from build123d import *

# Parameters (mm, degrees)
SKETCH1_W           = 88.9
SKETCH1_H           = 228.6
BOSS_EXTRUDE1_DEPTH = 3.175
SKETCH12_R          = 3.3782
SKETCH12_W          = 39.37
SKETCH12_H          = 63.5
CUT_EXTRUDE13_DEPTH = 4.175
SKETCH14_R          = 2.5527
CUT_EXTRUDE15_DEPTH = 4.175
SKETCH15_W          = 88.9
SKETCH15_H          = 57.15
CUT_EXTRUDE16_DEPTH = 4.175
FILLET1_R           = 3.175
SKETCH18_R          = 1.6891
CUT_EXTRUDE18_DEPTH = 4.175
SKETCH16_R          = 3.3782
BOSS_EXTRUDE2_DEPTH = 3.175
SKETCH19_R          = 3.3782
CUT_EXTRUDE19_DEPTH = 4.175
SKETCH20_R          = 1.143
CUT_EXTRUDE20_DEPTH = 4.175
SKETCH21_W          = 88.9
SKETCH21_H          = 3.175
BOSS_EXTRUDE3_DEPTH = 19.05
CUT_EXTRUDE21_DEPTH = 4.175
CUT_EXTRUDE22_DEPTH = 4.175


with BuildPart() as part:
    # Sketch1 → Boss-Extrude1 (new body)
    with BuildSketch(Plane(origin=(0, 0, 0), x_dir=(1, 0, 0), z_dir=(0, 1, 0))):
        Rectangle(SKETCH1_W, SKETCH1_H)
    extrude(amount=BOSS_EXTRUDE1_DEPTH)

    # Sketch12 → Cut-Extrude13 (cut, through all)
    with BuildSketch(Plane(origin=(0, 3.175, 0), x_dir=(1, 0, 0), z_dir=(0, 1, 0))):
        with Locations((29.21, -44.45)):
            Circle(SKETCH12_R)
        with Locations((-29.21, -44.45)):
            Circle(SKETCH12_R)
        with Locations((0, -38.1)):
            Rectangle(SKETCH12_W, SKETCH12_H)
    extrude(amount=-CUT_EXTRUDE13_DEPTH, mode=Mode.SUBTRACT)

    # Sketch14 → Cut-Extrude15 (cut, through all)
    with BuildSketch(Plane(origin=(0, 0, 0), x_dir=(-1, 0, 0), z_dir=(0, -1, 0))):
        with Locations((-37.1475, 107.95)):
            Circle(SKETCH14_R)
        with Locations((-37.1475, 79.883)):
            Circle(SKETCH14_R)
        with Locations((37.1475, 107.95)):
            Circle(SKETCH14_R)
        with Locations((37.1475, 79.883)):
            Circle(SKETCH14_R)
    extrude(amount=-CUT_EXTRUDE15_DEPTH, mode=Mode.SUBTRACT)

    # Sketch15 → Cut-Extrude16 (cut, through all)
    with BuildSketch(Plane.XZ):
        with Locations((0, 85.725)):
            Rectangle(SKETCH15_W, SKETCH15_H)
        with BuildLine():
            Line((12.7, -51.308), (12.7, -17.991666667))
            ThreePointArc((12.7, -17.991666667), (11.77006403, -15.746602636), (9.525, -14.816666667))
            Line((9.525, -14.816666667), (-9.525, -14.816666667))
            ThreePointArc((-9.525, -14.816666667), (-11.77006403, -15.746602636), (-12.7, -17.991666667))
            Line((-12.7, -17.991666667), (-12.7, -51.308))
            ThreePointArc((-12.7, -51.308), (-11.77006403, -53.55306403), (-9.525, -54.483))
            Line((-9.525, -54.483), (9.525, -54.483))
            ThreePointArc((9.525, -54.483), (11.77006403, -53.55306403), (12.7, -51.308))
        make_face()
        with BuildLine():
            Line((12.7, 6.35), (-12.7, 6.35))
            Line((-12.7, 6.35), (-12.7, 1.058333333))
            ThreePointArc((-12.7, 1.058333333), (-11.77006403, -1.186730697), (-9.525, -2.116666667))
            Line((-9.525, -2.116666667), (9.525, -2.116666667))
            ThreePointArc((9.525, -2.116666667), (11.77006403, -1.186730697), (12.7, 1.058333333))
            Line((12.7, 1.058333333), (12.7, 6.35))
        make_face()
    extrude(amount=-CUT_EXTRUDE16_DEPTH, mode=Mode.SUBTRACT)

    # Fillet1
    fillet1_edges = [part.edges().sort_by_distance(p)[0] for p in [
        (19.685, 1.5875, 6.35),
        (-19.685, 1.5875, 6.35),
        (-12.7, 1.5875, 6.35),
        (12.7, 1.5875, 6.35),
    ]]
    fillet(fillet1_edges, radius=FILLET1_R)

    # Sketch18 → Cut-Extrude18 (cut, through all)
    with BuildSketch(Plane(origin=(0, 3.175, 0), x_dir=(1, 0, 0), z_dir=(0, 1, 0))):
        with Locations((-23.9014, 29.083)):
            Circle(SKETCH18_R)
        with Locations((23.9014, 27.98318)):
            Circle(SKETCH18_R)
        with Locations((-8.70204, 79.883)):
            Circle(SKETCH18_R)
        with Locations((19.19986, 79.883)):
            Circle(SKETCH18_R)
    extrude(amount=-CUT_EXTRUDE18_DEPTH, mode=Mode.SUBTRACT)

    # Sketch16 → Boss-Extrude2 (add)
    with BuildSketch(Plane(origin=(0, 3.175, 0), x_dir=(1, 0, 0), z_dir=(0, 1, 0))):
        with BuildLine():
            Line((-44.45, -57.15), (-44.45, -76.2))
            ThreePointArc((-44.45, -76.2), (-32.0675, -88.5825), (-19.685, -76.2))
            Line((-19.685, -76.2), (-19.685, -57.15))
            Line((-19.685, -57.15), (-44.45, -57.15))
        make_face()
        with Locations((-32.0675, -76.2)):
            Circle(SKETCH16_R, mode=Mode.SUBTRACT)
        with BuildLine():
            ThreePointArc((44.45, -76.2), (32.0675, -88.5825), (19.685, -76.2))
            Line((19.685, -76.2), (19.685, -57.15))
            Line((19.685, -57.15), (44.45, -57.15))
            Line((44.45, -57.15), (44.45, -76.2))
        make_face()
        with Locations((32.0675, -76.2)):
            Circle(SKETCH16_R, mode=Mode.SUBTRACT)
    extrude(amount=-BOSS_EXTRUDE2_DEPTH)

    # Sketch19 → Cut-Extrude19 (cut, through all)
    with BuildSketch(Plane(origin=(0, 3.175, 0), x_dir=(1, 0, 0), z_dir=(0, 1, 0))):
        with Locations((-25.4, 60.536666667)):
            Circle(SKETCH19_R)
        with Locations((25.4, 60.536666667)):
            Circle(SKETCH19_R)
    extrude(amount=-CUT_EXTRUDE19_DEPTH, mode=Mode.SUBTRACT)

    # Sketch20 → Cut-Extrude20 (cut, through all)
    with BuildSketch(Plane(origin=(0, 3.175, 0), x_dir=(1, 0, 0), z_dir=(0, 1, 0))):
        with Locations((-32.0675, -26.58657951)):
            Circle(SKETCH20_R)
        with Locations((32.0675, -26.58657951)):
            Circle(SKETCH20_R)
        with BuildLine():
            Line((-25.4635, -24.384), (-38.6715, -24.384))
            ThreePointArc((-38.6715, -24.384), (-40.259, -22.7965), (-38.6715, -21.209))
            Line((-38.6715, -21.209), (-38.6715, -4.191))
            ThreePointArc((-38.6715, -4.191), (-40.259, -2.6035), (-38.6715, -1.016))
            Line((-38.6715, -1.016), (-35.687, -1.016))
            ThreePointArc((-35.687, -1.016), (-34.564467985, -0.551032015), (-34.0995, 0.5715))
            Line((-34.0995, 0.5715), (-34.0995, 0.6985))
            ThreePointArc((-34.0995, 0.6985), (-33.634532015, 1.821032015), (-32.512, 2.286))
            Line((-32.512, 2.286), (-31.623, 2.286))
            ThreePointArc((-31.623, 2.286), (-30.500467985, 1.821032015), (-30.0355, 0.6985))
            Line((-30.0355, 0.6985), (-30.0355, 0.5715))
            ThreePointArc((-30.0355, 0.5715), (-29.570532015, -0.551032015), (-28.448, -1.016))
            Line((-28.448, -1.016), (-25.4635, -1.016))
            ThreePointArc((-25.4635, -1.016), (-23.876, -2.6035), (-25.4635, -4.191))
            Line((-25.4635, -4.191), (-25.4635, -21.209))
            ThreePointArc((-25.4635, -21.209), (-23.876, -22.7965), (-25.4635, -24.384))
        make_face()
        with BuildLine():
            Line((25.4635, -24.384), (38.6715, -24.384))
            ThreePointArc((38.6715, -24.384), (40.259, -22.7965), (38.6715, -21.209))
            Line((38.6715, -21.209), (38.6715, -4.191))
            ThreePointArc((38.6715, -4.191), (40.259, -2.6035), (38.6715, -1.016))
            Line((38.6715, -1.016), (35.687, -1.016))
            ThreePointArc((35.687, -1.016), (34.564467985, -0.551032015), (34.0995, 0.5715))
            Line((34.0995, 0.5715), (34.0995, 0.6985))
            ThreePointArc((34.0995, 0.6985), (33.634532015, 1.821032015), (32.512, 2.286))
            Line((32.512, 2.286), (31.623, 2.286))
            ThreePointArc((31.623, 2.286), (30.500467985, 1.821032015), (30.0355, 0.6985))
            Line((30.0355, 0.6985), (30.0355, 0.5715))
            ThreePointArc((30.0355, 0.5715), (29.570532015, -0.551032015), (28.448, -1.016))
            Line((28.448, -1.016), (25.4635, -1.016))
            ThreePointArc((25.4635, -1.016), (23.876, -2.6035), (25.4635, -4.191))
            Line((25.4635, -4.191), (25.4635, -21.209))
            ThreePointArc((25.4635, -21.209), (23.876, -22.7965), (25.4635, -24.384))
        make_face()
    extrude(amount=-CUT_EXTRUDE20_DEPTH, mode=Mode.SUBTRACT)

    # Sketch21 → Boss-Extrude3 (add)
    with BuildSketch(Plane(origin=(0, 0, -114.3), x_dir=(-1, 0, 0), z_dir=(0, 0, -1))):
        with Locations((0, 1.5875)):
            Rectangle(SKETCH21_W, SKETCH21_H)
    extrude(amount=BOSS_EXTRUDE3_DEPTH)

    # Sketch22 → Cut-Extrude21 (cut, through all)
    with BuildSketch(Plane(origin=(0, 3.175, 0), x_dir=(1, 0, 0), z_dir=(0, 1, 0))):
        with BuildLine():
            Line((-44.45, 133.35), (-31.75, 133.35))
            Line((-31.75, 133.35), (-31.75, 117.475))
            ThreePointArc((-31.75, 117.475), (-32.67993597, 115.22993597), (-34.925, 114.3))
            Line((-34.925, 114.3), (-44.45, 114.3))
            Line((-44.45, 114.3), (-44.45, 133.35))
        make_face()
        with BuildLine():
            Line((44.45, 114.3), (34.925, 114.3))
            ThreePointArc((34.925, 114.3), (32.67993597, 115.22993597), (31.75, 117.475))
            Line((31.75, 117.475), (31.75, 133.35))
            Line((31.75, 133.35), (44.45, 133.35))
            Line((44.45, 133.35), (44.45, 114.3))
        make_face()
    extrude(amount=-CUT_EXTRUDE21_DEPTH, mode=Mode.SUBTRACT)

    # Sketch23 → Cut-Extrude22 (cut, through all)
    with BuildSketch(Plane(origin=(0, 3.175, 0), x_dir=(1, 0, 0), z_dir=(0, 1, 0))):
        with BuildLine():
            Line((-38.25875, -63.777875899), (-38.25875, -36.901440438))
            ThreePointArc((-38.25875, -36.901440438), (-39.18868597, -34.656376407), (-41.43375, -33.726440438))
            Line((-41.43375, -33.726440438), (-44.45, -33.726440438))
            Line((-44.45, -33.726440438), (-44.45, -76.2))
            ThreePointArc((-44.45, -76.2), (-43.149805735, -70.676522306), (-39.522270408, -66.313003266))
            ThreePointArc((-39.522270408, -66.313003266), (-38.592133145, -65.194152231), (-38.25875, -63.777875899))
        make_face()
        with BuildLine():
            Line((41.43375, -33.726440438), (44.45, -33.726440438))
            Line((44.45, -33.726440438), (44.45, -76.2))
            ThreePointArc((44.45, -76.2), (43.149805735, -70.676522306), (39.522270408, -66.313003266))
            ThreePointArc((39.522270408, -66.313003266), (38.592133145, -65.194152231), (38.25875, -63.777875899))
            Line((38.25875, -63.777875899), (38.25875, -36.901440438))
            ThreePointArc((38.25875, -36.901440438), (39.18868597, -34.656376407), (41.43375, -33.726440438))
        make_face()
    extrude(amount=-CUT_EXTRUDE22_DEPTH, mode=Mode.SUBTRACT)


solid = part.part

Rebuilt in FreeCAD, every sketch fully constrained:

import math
import FreeCAD as App
import Part
import Sketcher
from FreeCAD import Vector
Q = App.Units.Quantity


def edges_at(feature, points):
    """Names of the edges that pass closest to the given points."""
    edges = feature.Shape.Edges
    near = lambda p: min(range(len(edges)), key=lambda i: edges[i].distToShape(Part.Vertex(*p))[0])
    return sorted({f"Edge{near(p) + 1}" for p in points})


def add_polygon(sketch, points):
    """Adds a closed chain of lines whose ends are joined by coincident constraints."""
    first, n = sketch.GeometryCount, len(points)
    for a, b in zip(points, points[1:] + points[:1]):
        sketch.addGeometry(Part.LineSegment(App.Vector(*a, 0), App.Vector(*b, 0)), False)
    for i in range(n):
        sketch.addConstraint(Sketcher.Constraint("Coincident", first + i, 2, first + (i + 1) % n, 1))

doc = App.newDocument("Part")
body = doc.addObject("PartDesign::Body", "Body")

sketch1 = doc.addObject("Sketcher::SketchObject", "Sketch")
body.addObject(sketch1)
sketch1.AttachmentSupport = (doc.XZ_Plane, [""])
sketch1.MapMode = "FlatFace"
add_polygon(sketch1, [(-44, -114), (-44, 114), (44, 114), (44, -114)])
sketch1.addConstraint(Sketcher.Constraint("Vertical", 0))
sketch1.addConstraint(Sketcher.Constraint("Horizontal", 1))
sketch1.addConstraint(Sketcher.Constraint("Vertical", 2))
sketch1.addConstraint(Sketcher.Constraint("Horizontal", 3))
sketch1.addConstraint(Sketcher.Constraint("Symmetric", 0, 2, 2, 2, -1, 1))
sketch1.addConstraint(Sketcher.Constraint("DistanceY", 0, 1, 0, 2, Q("9 in")))
sketch1.addConstraint(Sketcher.Constraint("DistanceX", 1, 1, 1, 2, Q("3.5 in")))
pad1 = doc.addObject("PartDesign::Pad", "Pad")
body.addObject(pad1)
pad1.Profile = sketch1
pad1.Length = Q("0.125 in")
pad1.Reversed = True

sketch2 = doc.addObject("Sketcher::SketchObject", "Sketch001")
body.addObject(sketch2)
sketch2.AttachmentSupport = (doc.XZ_Plane, [""])
sketch2.MapMode = "FlatFace"
sketch2.AttachmentOffset = App.Placement(Vector(0, 0, -0.125 * 25.4), App.Rotation())
sketch2.addGeometry(Part.Circle(Vector(29.2, 44.5, 0), Vector(0, 0, 1), 3.4), False)
sketch2.addGeometry(Part.Circle(Vector(-29.2, 44.5, 0), Vector(0, 0, 1), 3.4), False)
add_polygon(sketch2, [(-19.7, 6.3), (-19.7, 69.8), (19.7, 69.8), (19.7, 6.3)])
sketch2.addConstraint(Sketcher.Constraint("Vertical", 2))
sketch2.addConstraint(Sketcher.Constraint("Horizontal", 3))
sketch2.addConstraint(Sketcher.Constraint("Vertical", 4))
sketch2.addConstraint(Sketcher.Constraint("Horizontal", 5))
sketch2.addConstraint(Sketcher.Constraint("Equal", 0, 1))
sketch2.addConstraint(Sketcher.Constraint("Symmetric", 0, 3, 1, 3, -2))
sketch2.addConstraint(Sketcher.Constraint("Diameter", 0, Q("0.266 in")))
sketch2.addConstraint(Sketcher.Constraint("DistanceY", 2, 1, 2, 2, Q("2.5 in")))
sketch2.addConstraint(Sketcher.Constraint("DistanceY", 1, 3, 2, 2, Q("1 in")))
sketch2.addConstraint(Sketcher.Constraint("DistanceX", 3, 1, 3, 2, Q("1.55 in")))
sketch2.addConstraint(Sketcher.Constraint("DistanceX", 1, 3, 0, 3, Q("2.3 in")))
sketch2.addConstraint(Sketcher.Constraint("DistanceY", -1, 1, 0, 3, Q("1.75 in")))
sketch2.addConstraint(Sketcher.Constraint("DistanceX", 2, 2, -1, 1, Q("0.775 in")))
pocket1 = doc.addObject("PartDesign::Pocket", "Pocket")
body.addObject(pocket1)
pocket1.Profile = sketch2
pocket1.Type = "ThroughAll"
pocket1.Reversed = True

sketch3 = doc.addObject("Sketcher::SketchObject", "Sketch002")
body.addObject(sketch3)
sketch3.AttachmentSupport = (doc.XZ_Plane, [""])
sketch3.MapMode = "FlatFace"
sketch3.addGeometry(Part.Circle(Vector(37.1, -108, 0), Vector(0, 0, 1), 2.6), False)
sketch3.addGeometry(Part.Circle(Vector(37.1, -79.9, 0), Vector(0, 0, 1), 2.6), False)
sketch3.addGeometry(Part.Circle(Vector(-37.1, -108, 0), Vector(0, 0, 1), 2.6), False)
sketch3.addGeometry(Part.Circle(Vector(-37.1, -79.9, 0), Vector(0, 0, 1), 2.6), False)
sketch3.addConstraint(Sketcher.Constraint("Equal", 0, 1))
sketch3.addConstraint(Sketcher.Constraint("Equal", 1, 2))
sketch3.addConstraint(Sketcher.Constraint("Equal", 2, 3))
sketch3.addConstraint(Sketcher.Constraint("Symmetric", 0, 3, 2, 3, -2))
sketch3.addConstraint(Sketcher.Constraint("Symmetric", 1, 3, 3, 3, -2))
sketch3.addConstraint(Sketcher.Constraint("Vertical", 0, 3, 1, 3))
sketch3.addConstraint(Sketcher.Constraint("Diameter", 0, Q("0.201 in")))
sketch3.addConstraint(Sketcher.Constraint("DistanceY", 0, 3, -1, 1, Q("4.25 in")))
sketch3.addConstraint(Sketcher.Constraint("DistanceY", 1, 3, -1, 1, Q("3.145 in")))
sketch3.addConstraint(Sketcher.Constraint("DistanceX", 2, 3, 0, 3, Q("2.925 in")))
pocket2 = doc.addObject("PartDesign::Pocket", "Pocket001")
body.addObject(pocket2)
pocket2.Profile = sketch3
pocket2.Type = "ThroughAll"

sketch4 = doc.addObject("Sketcher::SketchObject", "Sketch003")
body.addObject(sketch4)
sketch4.AttachmentSupport = (doc.XZ_Plane, [""])
sketch4.MapMode = "FlatFace"
add_polygon(sketch4, [(-44.5, 114.3), (-44.5, 57.1), (44.5, 57.1), (44.5, 114.3)])
sketch4.addGeometry(Part.LineSegment(Vector(12.7, -51.3, 0), Vector(12.7, -18, 0)), False)
sketch4.addGeometry(Part.ArcOfCircle(Part.Circle(Vector(9.5, -18, 0), Vector(0, 0, 1), 3.2), math.radians(0), math.radians(90)), False)
sketch4.addGeometry(Part.LineSegment(Vector(9.5, -14.8, 0), Vector(-9.5, -14.8, 0)), False)
sketch4.addGeometry(Part.ArcOfCircle(Part.Circle(Vector(-9.5, -18, 0), Vector(0, 0, 1), 3.2), math.radians(90), math.radians(180)), False)
sketch4.addGeometry(Part.LineSegment(Vector(-12.7, -18, 0), Vector(-12.7, -51.3, 0)), False)
sketch4.addGeometry(Part.ArcOfCircle(Part.Circle(Vector(-9.5, -51.3, 0), Vector(0, 0, 1), 3.2), math.radians(-180), math.radians(-90)), False)
sketch4.addGeometry(Part.LineSegment(Vector(-9.5, -54.5, 0), Vector(9.5, -54.5, 0)), False)
sketch4.addGeometry(Part.ArcOfCircle(Part.Circle(Vector(9.5, -51.3, 0), Vector(0, 0, 1), 3.2), math.radians(-90), math.radians(0)), False)
sketch4.addGeometry(Part.LineSegment(Vector(12.7, 6.3, 0), Vector(-12.7, 6.3, 0)), False)
sketch4.addGeometry(Part.LineSegment(Vector(-12.7, 6.3, 0), Vector(-12.7, 1.1, 0)), False)
sketch4.addGeometry(Part.ArcOfCircle(Part.Circle(Vector(-9.5, 1.1, 0), Vector(0, 0, 1), 3.2), math.radians(-180), math.radians(-90)), False)
sketch4.addGeometry(Part.LineSegment(Vector(-9.5, -2.1, 0), Vector(9.5, -2.1, 0)), False)
sketch4.addGeometry(Part.ArcOfCircle(Part.Circle(Vector(9.5, 1.1, 0), Vector(0, 0, 1), 3.2), math.radians(-90), math.radians(0)), False)
sketch4.addGeometry(Part.LineSegment(Vector(12.7, 1.1, 0), Vector(12.7, 6.3, 0)), False)
sketch4.addConstraint(Sketcher.Constraint("Tangent", 4, 2, 5, 1))
sketch4.addConstraint(Sketcher.Constraint("Tangent", 5, 2, 6, 1))
sketch4.addConstraint(Sketcher.Constraint("Tangent", 6, 2, 7, 1))
sketch4.addConstraint(Sketcher.Constraint("Tangent", 7, 2, 8, 1))
sketch4.addConstraint(Sketcher.Constraint("Tangent", 8, 2, 9, 1))
sketch4.addConstraint(Sketcher.Constraint("Tangent", 9, 2, 10, 1))
sketch4.addConstraint(Sketcher.Constraint("Tangent", 10, 2, 11, 1))
sketch4.addConstraint(Sketcher.Constraint("Tangent", 11, 2, 4, 1))
sketch4.addConstraint(Sketcher.Constraint("Coincident", 12, 2, 13, 1))
sketch4.addConstraint(Sketcher.Constraint("Tangent", 13, 2, 14, 1))
sketch4.addConstraint(Sketcher.Constraint("Tangent", 14, 2, 15, 1))
sketch4.addConstraint(Sketcher.Constraint("Tangent", 15, 2, 16, 1))
sketch4.addConstraint(Sketcher.Constraint("Tangent", 16, 2, 17, 1))
sketch4.addConstraint(Sketcher.Constraint("Coincident", 17, 2, 12, 1))
sketch4.addConstraint(Sketcher.Constraint("Vertical", 0))
sketch4.addConstraint(Sketcher.Constraint("Horizontal", 1))
sketch4.addConstraint(Sketcher.Constraint("Vertical", 2))
sketch4.addConstraint(Sketcher.Constraint("Horizontal", 3))
sketch4.addConstraint(Sketcher.Constraint("Vertical", 4))
sketch4.addConstraint(Sketcher.Constraint("Horizontal", 6))
sketch4.addConstraint(Sketcher.Constraint("Vertical", 8))
sketch4.addConstraint(Sketcher.Constraint("Horizontal", 10))
sketch4.addConstraint(Sketcher.Constraint("Horizontal", 12))
sketch4.addConstraint(Sketcher.Constraint("Vertical", 13))
sketch4.addConstraint(Sketcher.Constraint("Horizontal", 15))
sketch4.addConstraint(Sketcher.Constraint("Vertical", 17))
sketch4.addConstraint(Sketcher.Constraint("Equal", 5, 7))
sketch4.addConstraint(Sketcher.Constraint("Equal", 7, 9))
sketch4.addConstraint(Sketcher.Constraint("Equal", 9, 11))
sketch4.addConstraint(Sketcher.Constraint("Equal", 11, 14))
sketch4.addConstraint(Sketcher.Constraint("Equal", 14, 16))
sketch4.addConstraint(Sketcher.Constraint("Vertical", 9, 3, 14, 3))
sketch4.addConstraint(Sketcher.Constraint("Vertical", 11, 3, 16, 3))
sketch4.addConstraint(Sketcher.Constraint("DistanceX", 12, 2, 12, 1, Q("1 in")))
sketch4.addConstraint(Sketcher.Constraint("DistanceX", 1, 1, 1, 2, Q("3.5 in")))
sketch4.addConstraint(Sketcher.Constraint("Radius", 5, Q("0.125 in")))
sketch4.addConstraint(Sketcher.Constraint("DistanceY", 0, 2, 0, 1, Q("2.25 in")))
sketch4.addConstraint(Sketcher.Constraint("DistanceY", -1, 1, 2, 2, Q("4.5 in")))
sketch4.addConstraint(Sketcher.Constraint("DistanceX", -1, 1, 4, 2, Q("0.5 in")))
sketch4.addConstraint(Sketcher.Constraint("DistanceY", 6, 2, 14, 2, Q("0.5 in")))
sketch4.addConstraint(Sketcher.Constraint("DistanceY", 9, 3, -1, 1, Q("2.02 in")))
sketch4.addConstraint(Sketcher.Constraint("DistanceX", 0, 2, -1, 1, Q("1.75 in")))
sketch4.addConstraint(Sketcher.Constraint("DistanceY", -1, 1, 12, 2, Q("0.25 in")))
sketch4.addConstraint(Sketcher.Constraint("DistanceY", 4, 1, 4, 2, Q("33.316333 mm")))
pocket3 = doc.addObject("PartDesign::Pocket", "Pocket002")
body.addObject(pocket3)
pocket3.Profile = sketch4
pocket3.Type = "ThroughAll"
doc.recompute()

fillet = doc.addObject("PartDesign::Fillet", "Fillet")
body.addObject(fillet)
fillet.Base = (pocket3, edges_at(pocket3, [
    (19.685, 1.587, 6.35),
    (-19.685, 1.587, 6.35),
    (-12.7, 1.587, 6.35),
    (12.7, 1.587, 6.35),
]))
fillet.Radius = Q("0.125 in")

sketch5 = doc.addObject("Sketcher::SketchObject", "Sketch004")
body.addObject(sketch5)
sketch5.AttachmentSupport = (doc.XZ_Plane, [""])
sketch5.MapMode = "FlatFace"
sketch5.AttachmentOffset = App.Placement(Vector(0, 0, -0.125 * 25.4), App.Rotation())
sketch5.addGeometry(Part.Circle(Vector(-23.9, -29.1, 0), Vector(0, 0, 1), 1.7), False)
sketch5.addGeometry(Part.Circle(Vector(23.9, -28, 0), Vector(0, 0, 1), 1.7), False)
sketch5.addGeometry(Part.Circle(Vector(-8.7, -79.9, 0), Vector(0, 0, 1), 1.7), False)
sketch5.addGeometry(Part.Circle(Vector(19.2, -79.9, 0), Vector(0, 0, 1), 1.7), False)
sketch5.addConstraint(Sketcher.Constraint("Equal", 0, 1))
sketch5.addConstraint(Sketcher.Constraint("Equal", 1, 2))
sketch5.addConstraint(Sketcher.Constraint("Equal", 2, 3))
sketch5.addConstraint(Sketcher.Constraint("Horizontal", 2, 3, 3, 3))
sketch5.addConstraint(Sketcher.Constraint("Diameter", 0, Q("0.133 in")))
sketch5.addConstraint(Sketcher.Constraint("DistanceY", 2, 3, 0, 3, Q("2 in")))
sketch5.addConstraint(Sketcher.Constraint("DistanceX", 0, 3, -1, 1, Q("0.941 in")))
sketch5.addConstraint(Sketcher.Constraint("DistanceY", 0, 3, -1, 1, Q("1.145 in")))
sketch5.addConstraint(Sketcher.Constraint("DistanceX", -1, 1, 1, 3, Q("0.941 in")))
sketch5.addConstraint(Sketcher.Constraint("DistanceY", 1, 3, -1, 1, Q("1.1017 in")))
sketch5.addConstraint(Sketcher.Constraint("DistanceX", 2, 3, -1, 1, Q("0.3426 in")))
sketch5.addConstraint(Sketcher.Constraint("DistanceX", -1, 1, 3, 3, Q("0.7559 in")))
pocket4 = doc.addObject("PartDesign::Pocket", "Pocket003")
body.addObject(pocket4)
pocket4.Profile = sketch5
pocket4.Type = "ThroughAll"
pocket4.Reversed = True

sketch6 = doc.addObject("Sketcher::SketchObject", "Sketch005")
body.addObject(sketch6)
sketch6.AttachmentSupport = (doc.XZ_Plane, [""])
sketch6.MapMode = "FlatFace"
sketch6.AttachmentOffset = App.Placement(Vector(0, 0, -0.125 * 25.4), App.Rotation())
sketch6.addGeometry(Part.LineSegment(Vector(-44.5, 57.1, 0), Vector(-44.5, 76.2, 0)), False)
sketch6.addGeometry(Part.ArcOfCircle(Part.Circle(Vector(-32.1, 76.2, 0), Vector(0, 0, 1), 12.4), math.radians(0), math.radians(180)), False)
sketch6.addGeometry(Part.LineSegment(Vector(-19.7, 76.2, 0), Vector(-19.7, 57.1, 0)), False)
sketch6.addGeometry(Part.LineSegment(Vector(-19.7, 57.1, 0), Vector(-44.5, 57.1, 0)), False)
sketch6.addGeometry(Part.Circle(Vector(-32.1, 76.2, 0), Vector(0, 0, 1), 3.4), False)
sketch6.addGeometry(Part.ArcOfCircle(Part.Circle(Vector(32.1, 76.2, 0), Vector(0, 0, 1), 12.4), math.radians(0), math.radians(180)), False)
sketch6.addGeometry(Part.LineSegment(Vector(44.5, 76.2, 0), Vector(44.5, 57.1, 0)), False)
sketch6.addGeometry(Part.LineSegment(Vector(44.5, 57.1, 0), Vector(19.7, 57.1, 0)), False)
sketch6.addGeometry(Part.LineSegment(Vector(19.7, 57.1, 0), Vector(19.7, 76.2, 0)), False)
sketch6.addGeometry(Part.Circle(Vector(32.1, 76.2, 0), Vector(0, 0, 1), 3.4), False)
sketch6.addConstraint(Sketcher.Constraint("Tangent", 0, 2, 1, 2))
sketch6.addConstraint(Sketcher.Constraint("Tangent", 1, 1, 2, 1))
sketch6.addConstraint(Sketcher.Constraint("Coincident", 2, 2, 3, 1))
sketch6.addConstraint(Sketcher.Constraint("Coincident", 3, 2, 0, 1))
sketch6.addConstraint(Sketcher.Constraint("Tangent", 5, 1, 6, 1))
sketch6.addConstraint(Sketcher.Constraint("Coincident", 6, 2, 7, 1))
sketch6.addConstraint(Sketcher.Constraint("Coincident", 7, 2, 8, 1))
sketch6.addConstraint(Sketcher.Constraint("Tangent", 8, 2, 5, 2))
sketch6.addConstraint(Sketcher.Constraint("Vertical", 0))
sketch6.addConstraint(Sketcher.Constraint("Vertical", 2))
sketch6.addConstraint(Sketcher.Constraint("Horizontal", 3))
sketch6.addConstraint(Sketcher.Constraint("Vertical", 6))
sketch6.addConstraint(Sketcher.Constraint("Horizontal", 7))
sketch6.addConstraint(Sketcher.Constraint("Vertical", 8))
sketch6.addConstraint(Sketcher.Constraint("Coincident", 4, 3, 1, 3))
sketch6.addConstraint(Sketcher.Constraint("Coincident", 9, 3, 5, 3))
sketch6.addConstraint(Sketcher.Constraint("Equal", 1, 5))
sketch6.addConstraint(Sketcher.Constraint("Equal", 4, 9))
sketch6.addConstraint(Sketcher.Constraint("Symmetric", 1, 3, 5, 3, -2))
sketch6.addConstraint(Sketcher.Constraint("Horizontal", 3, 2, 6, 2))
sketch6.addConstraint(Sketcher.Constraint("Diameter", 4, Q("0.266 in")))
sketch6.addConstraint(Sketcher.Constraint("DistanceY", -1, 1, 1, 3, Q("3 in")))
sketch6.addConstraint(Sketcher.Constraint("DistanceY", 0, 1, 0, 2, Q("0.75 in")))
sketch6.addConstraint(Sketcher.Constraint("Radius", 1, Q("0.4875 in")))
sketch6.addConstraint(Sketcher.Constraint("DistanceX", 0, 2, -1, 1, Q("1.75 in")))
pad2 = doc.addObject("PartDesign::Pad", "Pad001")
body.addObject(pad2)
pad2.Profile = sketch6
pad2.Length = Q("0.125 in")

sketch7 = doc.addObject("Sketcher::SketchObject", "Sketch006")
body.addObject(sketch7)
sketch7.AttachmentSupport = (doc.XZ_Plane, [""])
sketch7.MapMode = "FlatFace"
sketch7.AttachmentOffset = App.Placement(Vector(0, 0, -0.125 * 25.4), App.Rotation())
sketch7.addGeometry(Part.Circle(Vector(-25.4, -60.5, 0), Vector(0, 0, 1), 3.4), False)
sketch7.addGeometry(Part.Circle(Vector(25.4, -60.5, 0), Vector(0, 0, 1), 3.4), False)
sketch7.addConstraint(Sketcher.Constraint("Equal", 0, 1))
sketch7.addConstraint(Sketcher.Constraint("Symmetric", 0, 3, 1, 3, -2))
sketch7.addConstraint(Sketcher.Constraint("Diameter", 0, Q("0.266 in")))
sketch7.addConstraint(Sketcher.Constraint("DistanceX", 0, 3, -1, 1, Q("1 in")))
sketch7.addConstraint(Sketcher.Constraint("DistanceY", 0, 3, -1, 1, Q("60.536667 mm")))
pocket5 = doc.addObject("PartDesign::Pocket", "Pocket004")
body.addObject(pocket5)
pocket5.Profile = sketch7
pocket5.Type = "ThroughAll"
pocket5.Reversed = True

sketch8 = doc.addObject("Sketcher::SketchObject", "Sketch007")
body.addObject(sketch8)
sketch8.AttachmentSupport = (doc.XZ_Plane, [""])
sketch8.MapMode = "FlatFace"
sketch8.AttachmentOffset = App.Placement(Vector(0, 0, -0.125 * 25.4), App.Rotation())
sketch8.addGeometry(Part.Circle(Vector(-32.07, 26.59, 0), Vector(0, 0, 1), 1.14), False)
sketch8.addGeometry(Part.Circle(Vector(32.07, 26.59, 0), Vector(0, 0, 1), 1.14), False)
sketch8.addGeometry(Part.LineSegment(Vector(-38.67, 24.38, 0), Vector(-25.46, 24.38, 0)), False)
sketch8.addGeometry(Part.ArcOfCircle(Part.Circle(Vector(-25.46, 22.8, 0), Vector(0, 0, 1), 1.59), math.radians(-90), math.radians(90)), False)
sketch8.addGeometry(Part.LineSegment(Vector(-25.46, 21.21, 0), Vector(-25.46, 4.19, 0)), False)
sketch8.addGeometry(Part.ArcOfCircle(Part.Circle(Vector(-25.46, 2.6, 0), Vector(0, 0, 1), 1.59), math.radians(-90), math.radians(90)), False)
sketch8.addGeometry(Part.LineSegment(Vector(-25.46, 1.02, 0), Vector(-28.45, 1.02, 0)), False)
sketch8.addGeometry(Part.ArcOfCircle(Part.Circle(Vector(-28.45, -0.57, 0), Vector(0, 0, 1), 1.59), math.radians(90), math.radians(180)), False)
sketch8.addGeometry(Part.LineSegment(Vector(-30.04, -0.57, 0), Vector(-30.04, -0.7, 0)), False)
sketch8.addGeometry(Part.ArcOfCircle(Part.Circle(Vector(-31.62, -0.7, 0), Vector(0, 0, 1), 1.59), math.radians(-90), math.radians(0)), False)
sketch8.addGeometry(Part.LineSegment(Vector(-31.62, -2.29, 0), Vector(-32.51, -2.29, 0)), False)
sketch8.addGeometry(Part.ArcOfCircle(Part.Circle(Vector(-32.51, -0.7, 0), Vector(0, 0, 1), 1.59), math.radians(180), math.radians(270)), False)
sketch8.addGeometry(Part.LineSegment(Vector(-34.1, -0.7, 0), Vector(-34.1, -0.57, 0)), False)
sketch8.addGeometry(Part.ArcOfCircle(Part.Circle(Vector(-35.69, -0.57, 0), Vector(0, 0, 1), 1.59), math.radians(0), math.radians(90)), False)
sketch8.addGeometry(Part.LineSegment(Vector(-35.69, 1.02, 0), Vector(-38.67, 1.02, 0)), False)
sketch8.addGeometry(Part.ArcOfCircle(Part.Circle(Vector(-38.67, 2.6, 0), Vector(0, 0, 1), 1.59), math.radians(90), math.radians(270)), False)
sketch8.addGeometry(Part.LineSegment(Vector(-38.67, 4.19, 0), Vector(-38.67, 21.21, 0)), False)
sketch8.addGeometry(Part.ArcOfCircle(Part.Circle(Vector(-38.67, 22.8, 0), Vector(0, 0, 1), 1.59), math.radians(90), math.radians(270)), False)
sketch8.addGeometry(Part.LineSegment(Vector(25.46, 24.38, 0), Vector(38.67, 24.38, 0)), False)
sketch8.addGeometry(Part.ArcOfCircle(Part.Circle(Vector(38.67, 22.8, 0), Vector(0, 0, 1), 1.59), math.radians(-90), math.radians(90)), False)
sketch8.addGeometry(Part.LineSegment(Vector(38.67, 21.21, 0), Vector(38.67, 4.19, 0)), False)
sketch8.addGeometry(Part.ArcOfCircle(Part.Circle(Vector(38.67, 2.6, 0), Vector(0, 0, 1), 1.59), math.radians(-90), math.radians(90)), False)
sketch8.addGeometry(Part.LineSegment(Vector(38.67, 1.02, 0), Vector(35.69, 1.02, 0)), False)
sketch8.addGeometry(Part.ArcOfCircle(Part.Circle(Vector(35.69, -0.57, 0), Vector(0, 0, 1), 1.59), math.radians(90), math.radians(180)), False)
sketch8.addGeometry(Part.LineSegment(Vector(34.1, -0.57, 0), Vector(34.1, -0.7, 0)), False)
sketch8.addGeometry(Part.ArcOfCircle(Part.Circle(Vector(32.51, -0.7, 0), Vector(0, 0, 1), 1.59), math.radians(-90), math.radians(0)), False)
sketch8.addGeometry(Part.LineSegment(Vector(32.51, -2.29, 0), Vector(31.62, -2.29, 0)), False)
sketch8.addGeometry(Part.ArcOfCircle(Part.Circle(Vector(31.62, -0.7, 0), Vector(0, 0, 1), 1.59), math.radians(180), math.radians(270)), False)
sketch8.addGeometry(Part.LineSegment(Vector(30.04, -0.7, 0), Vector(30.04, -0.57, 0)), False)
sketch8.addGeometry(Part.ArcOfCircle(Part.Circle(Vector(28.45, -0.57, 0), Vector(0, 0, 1), 1.59), math.radians(0), math.radians(90)), False)
sketch8.addGeometry(Part.LineSegment(Vector(28.45, 1.02, 0), Vector(25.46, 1.02, 0)), False)
sketch8.addGeometry(Part.ArcOfCircle(Part.Circle(Vector(25.46, 2.6, 0), Vector(0, 0, 1), 1.59), math.radians(90), math.radians(270)), False)
sketch8.addGeometry(Part.LineSegment(Vector(25.46, 4.19, 0), Vector(25.46, 21.21, 0)), False)
sketch8.addGeometry(Part.ArcOfCircle(Part.Circle(Vector(25.46, 22.8, 0), Vector(0, 0, 1), 1.59), math.radians(90), math.radians(270)), False)
sketch8.addConstraint(Sketcher.Constraint("Tangent", 2, 2, 3, 2))
sketch8.addConstraint(Sketcher.Constraint("Coincident", 3, 1, 4, 1))
sketch8.addConstraint(Sketcher.Constraint("Coincident", 4, 2, 5, 2))
sketch8.addConstraint(Sketcher.Constraint("Tangent", 5, 1, 6, 1))
sketch8.addConstraint(Sketcher.Constraint("Tangent", 6, 2, 7, 1))
sketch8.addConstraint(Sketcher.Constraint("Tangent", 7, 2, 8, 1))
sketch8.addConstraint(Sketcher.Constraint("Tangent", 8, 2, 9, 2))
sketch8.addConstraint(Sketcher.Constraint("Tangent", 9, 1, 10, 1))
sketch8.addConstraint(Sketcher.Constraint("Tangent", 10, 2, 11, 2))
sketch8.addConstraint(Sketcher.Constraint("Tangent", 11, 1, 12, 1))
sketch8.addConstraint(Sketcher.Constraint("Tangent", 12, 2, 13, 1))
sketch8.addConstraint(Sketcher.Constraint("Tangent", 13, 2, 14, 1))
sketch8.addConstraint(Sketcher.Constraint("Tangent", 14, 2, 15, 2))
sketch8.addConstraint(Sketcher.Constraint("Coincident", 15, 1, 16, 1))
sketch8.addConstraint(Sketcher.Constraint("Coincident", 16, 2, 17, 2))
sketch8.addConstraint(Sketcher.Constraint("Tangent", 17, 1, 2, 1))
sketch8.addConstraint(Sketcher.Constraint("Tangent", 18, 2, 19, 2))
sketch8.addConstraint(Sketcher.Constraint("Coincident", 19, 1, 20, 1))
sketch8.addConstraint(Sketcher.Constraint("Coincident", 20, 2, 21, 2))
sketch8.addConstraint(Sketcher.Constraint("Tangent", 21, 1, 22, 1))
sketch8.addConstraint(Sketcher.Constraint("Tangent", 22, 2, 23, 1))
sketch8.addConstraint(Sketcher.Constraint("Tangent", 23, 2, 24, 1))
sketch8.addConstraint(Sketcher.Constraint("Tangent", 24, 2, 25, 2))
sketch8.addConstraint(Sketcher.Constraint("Tangent", 25, 1, 26, 1))
sketch8.addConstraint(Sketcher.Constraint("Tangent", 26, 2, 27, 2))
sketch8.addConstraint(Sketcher.Constraint("Tangent", 27, 1, 28, 1))
sketch8.addConstraint(Sketcher.Constraint("Tangent", 28, 2, 29, 1))
sketch8.addConstraint(Sketcher.Constraint("Tangent", 29, 2, 30, 1))
sketch8.addConstraint(Sketcher.Constraint("Tangent", 30, 2, 31, 2))
sketch8.addConstraint(Sketcher.Constraint("Coincident", 31, 1, 32, 1))
sketch8.addConstraint(Sketcher.Constraint("Coincident", 32, 2, 33, 2))
sketch8.addConstraint(Sketcher.Constraint("Tangent", 33, 1, 18, 1))
sketch8.addConstraint(Sketcher.Constraint("Horizontal", 2))
sketch8.addConstraint(Sketcher.Constraint("Vertical", 4))
sketch8.addConstraint(Sketcher.Constraint("Horizontal", 6))
sketch8.addConstraint(Sketcher.Constraint("Vertical", 8))
sketch8.addConstraint(Sketcher.Constraint("Horizontal", 10))
sketch8.addConstraint(Sketcher.Constraint("Vertical", 12))
sketch8.addConstraint(Sketcher.Constraint("Horizontal", 14))
sketch8.addConstraint(Sketcher.Constraint("Vertical", 16))
sketch8.addConstraint(Sketcher.Constraint("Horizontal", 18))
sketch8.addConstraint(Sketcher.Constraint("Vertical", 20))
sketch8.addConstraint(Sketcher.Constraint("Horizontal", 22))
sketch8.addConstraint(Sketcher.Constraint("Vertical", 24))
sketch8.addConstraint(Sketcher.Constraint("Horizontal", 26))
sketch8.addConstraint(Sketcher.Constraint("Vertical", 28))
sketch8.addConstraint(Sketcher.Constraint("Horizontal", 30))
sketch8.addConstraint(Sketcher.Constraint("Vertical", 32))
sketch8.addConstraint(Sketcher.Constraint("Equal", 0, 1))
sketch8.addConstraint(Sketcher.Constraint("Equal", 3, 5))
sketch8.addConstraint(Sketcher.Constraint("Equal", 5, 7))
sketch8.addConstraint(Sketcher.Constraint("Equal", 7, 9))
sketch8.addConstraint(Sketcher.Constraint("Equal", 9, 11))
sketch8.addConstraint(Sketcher.Constraint("Equal", 11, 13))
sketch8.addConstraint(Sketcher.Constraint("Equal", 13, 15))
sketch8.addConstraint(Sketcher.Constraint("Equal", 15, 17))
sketch8.addConstraint(Sketcher.Constraint("Equal", 17, 19))
sketch8.addConstraint(Sketcher.Constraint("Equal", 19, 21))
sketch8.addConstraint(Sketcher.Constraint("Equal", 21, 23))
sketch8.addConstraint(Sketcher.Constraint("Equal", 23, 25))
sketch8.addConstraint(Sketcher.Constraint("Equal", 25, 27))
sketch8.addConstraint(Sketcher.Constraint("Equal", 27, 29))
sketch8.addConstraint(Sketcher.Constraint("Equal", 29, 31))
sketch8.addConstraint(Sketcher.Constraint("Equal", 31, 33))
sketch8.addConstraint(Sketcher.Constraint("Symmetric", 0, 3, 1, 3, -2))
sketch8.addConstraint(Sketcher.Constraint("Symmetric", 17, 3, 19, 3, -2))
sketch8.addConstraint(Sketcher.Constraint("Symmetric", 15, 3, 21, 3, -2))
sketch8.addConstraint(Sketcher.Constraint("Symmetric", 11, 3, 25, 3, -2))
sketch8.addConstraint(Sketcher.Constraint("Symmetric", 7, 3, 29, 3, -2))
sketch8.addConstraint(Sketcher.Constraint("Horizontal", 7, 3, 13, 3))
sketch8.addConstraint(Sketcher.Constraint("Vertical", 3, 3, 5, 3))
sketch8.addConstraint(Sketcher.Constraint("Vertical", 15, 3, 17, 3))
sketch8.addConstraint(Sketcher.Constraint("Vertical", 31, 3, 33, 3))
sketch8.addConstraint(Sketcher.Constraint("Vertical", 2, 2, 3, 1))
sketch8.addConstraint(Sketcher.Constraint("Vertical", 14, 2, 15, 1))
sketch8.addConstraint(Sketcher.Constraint("Vertical", 18, 2, 19, 1))
sketch8.addConstraint(Sketcher.Constraint("Vertical", 30, 2, 31, 1))
sketch8.addConstraint(Sketcher.Constraint("Equal", 6, 14))
sketch8.addConstraint(Sketcher.Constraint("Equal", 2, 18))
sketch8.addConstraint(Sketcher.Constraint("Diameter", 0, Q("0.09 in")))
sketch8.addConstraint(Sketcher.Constraint("Radius", 3, Q("0.0625 in")))
sketch8.addConstraint(Sketcher.Constraint("DistanceX", 2, 1, 2, 2, Q("0.52 in")))
sketch8.addConstraint(Sketcher.Constraint("DistanceY", 4, 2, 4, 1, Q("0.67 in")))
sketch8.addConstraint(Sketcher.Constraint("DistanceX", 10, 2, 10, 1, Q("0.035 in")))
sketch8.addConstraint(Sketcher.Constraint("DistanceY", 8, 2, 8, 1, Q("0.005 in")))
sketch8.addConstraint(Sketcher.Constraint("DistanceX", 7, 3, -1, 1, Q("1.12 in")))
sketch8.addConstraint(Sketcher.Constraint("DistanceY", -1, 1, 2, 2, Q("0.96 in")))
sketch8.addConstraint(Sketcher.Constraint("DistanceX", 0, 3, 3, 3, Q("0.26 in")))
sketch8.addConstraint(Sketcher.Constraint("DistanceY", -1, 1, 0, 3, Q("26.58658 mm")))
pocket6 = doc.addObject("PartDesign::Pocket", "Pocket005")
body.addObject(pocket6)
pocket6.Profile = sketch8
pocket6.Type = "ThroughAll"
pocket6.Reversed = True

sketch9 = doc.addObject("Sketcher::SketchObject", "Sketch008")
body.addObject(sketch9)
sketch9.AttachmentSupport = (doc.XY_Plane, [""])
sketch9.MapMode = "FlatFace"
sketch9.AttachmentOffset = App.Placement(Vector(0, 0, -4.5 * 25.4), App.Rotation())
add_polygon(sketch9, [(44.5, 3.2), (44.5, 0), (-44.5, 0), (-44.5, 3.2)])
sketch9.addConstraint(Sketcher.Constraint("Vertical", 0))
sketch9.addConstraint(Sketcher.Constraint("Horizontal", 1))
sketch9.addConstraint(Sketcher.Constraint("Vertical", 2))
sketch9.addConstraint(Sketcher.Constraint("Horizontal", 3))
sketch9.addConstraint(Sketcher.Constraint("Symmetric", 0, 2, 1, 2, -1, 1))
sketch9.addConstraint(Sketcher.Constraint("DistanceX", 1, 2, 1, 1, Q("3.5 in")))
sketch9.addConstraint(Sketcher.Constraint("DistanceY", 0, 2, 0, 1, Q("0.125 in")))
pad3 = doc.addObject("PartDesign::Pad", "Pad002")
body.addObject(pad3)
pad3.Profile = sketch9
pad3.Length = Q("0.75 in")
pad3.Reversed = True

sketch10 = doc.addObject("Sketcher::SketchObject", "Sketch009")
body.addObject(sketch10)
sketch10.AttachmentSupport = (doc.XZ_Plane, [""])
sketch10.MapMode = "FlatFace"
sketch10.AttachmentOffset = App.Placement(Vector(0, 0, -0.125 * 25.4), App.Rotation())
sketch10.addGeometry(Part.LineSegment(Vector(-31.8, -133.3, 0), Vector(-44.5, -133.3, 0)), False)
sketch10.addGeometry(Part.LineSegment(Vector(-44.5, -133.3, 0), Vector(-44.5, -114.3, 0)), False)
sketch10.addGeometry(Part.LineSegment(Vector(-44.5, -114.3, 0), Vector(-34.9, -114.3, 0)), False)
sketch10.addGeometry(Part.ArcOfCircle(Part.Circle(Vector(-34.9, -117.5, 0), Vector(0, 0, 1), 3.2), math.radians(0), math.radians(90)), False)
sketch10.addGeometry(Part.LineSegment(Vector(-31.8, -117.5, 0), Vector(-31.8, -133.3, 0)), False)
sketch10.addGeometry(Part.LineSegment(Vector(34.9, -114.3, 0), Vector(44.5, -114.3, 0)), False)
sketch10.addGeometry(Part.LineSegment(Vector(44.5, -114.3, 0), Vector(44.5, -133.3, 0)), False)
sketch10.addGeometry(Part.LineSegment(Vector(44.5, -133.3, 0), Vector(31.8, -133.3, 0)), False)
sketch10.addGeometry(Part.LineSegment(Vector(31.8, -133.3, 0), Vector(31.8, -117.5, 0)), False)
sketch10.addGeometry(Part.ArcOfCircle(Part.Circle(Vector(34.9, -117.5, 0), Vector(0, 0, 1), 3.2), math.radians(90), math.radians(180)), False)
sketch10.addConstraint(Sketcher.Constraint("Coincident", 0, 2, 1, 1))
sketch10.addConstraint(Sketcher.Constraint("Coincident", 1, 2, 2, 1))
sketch10.addConstraint(Sketcher.Constraint("Tangent", 2, 2, 3, 2))
sketch10.addConstraint(Sketcher.Constraint("Tangent", 3, 1, 4, 1))
sketch10.addConstraint(Sketcher.Constraint("Coincident", 4, 2, 0, 1))
sketch10.addConstraint(Sketcher.Constraint("Coincident", 5, 2, 6, 1))
sketch10.addConstraint(Sketcher.Constraint("Coincident", 6, 2, 7, 1))
sketch10.addConstraint(Sketcher.Constraint("Coincident", 7, 2, 8, 1))
sketch10.addConstraint(Sketcher.Constraint("Tangent", 8, 2, 9, 2))
sketch10.addConstraint(Sketcher.Constraint("Tangent", 9, 1, 5, 1))
sketch10.addConstraint(Sketcher.Constraint("Horizontal", 0))
sketch10.addConstraint(Sketcher.Constraint("Vertical", 1))
sketch10.addConstraint(Sketcher.Constraint("Horizontal", 2))
sketch10.addConstraint(Sketcher.Constraint("Vertical", 4))
sketch10.addConstraint(Sketcher.Constraint("Horizontal", 5))
sketch10.addConstraint(Sketcher.Constraint("Vertical", 6))
sketch10.addConstraint(Sketcher.Constraint("Horizontal", 7))
sketch10.addConstraint(Sketcher.Constraint("Vertical", 8))
sketch10.addConstraint(Sketcher.Constraint("Equal", 3, 9))
sketch10.addConstraint(Sketcher.Constraint("Symmetric", 3, 3, 9, 3, -2))
sketch10.addConstraint(Sketcher.Constraint("Symmetric", 0, 2, 6, 2, -2))
sketch10.addConstraint(Sketcher.Constraint("DistanceX", 0, 2, 0, 1, Q("0.5 in")))
sketch10.addConstraint(Sketcher.Constraint("Radius", 3, Q("0.125 in")))
sketch10.addConstraint(Sketcher.Constraint("DistanceX", 3, 1, 5, 2, Q("3 in")))
sketch10.addConstraint(Sketcher.Constraint("DistanceY", 1, 1, 1, 2, Q("0.75 in")))
sketch10.addConstraint(Sketcher.Constraint("DistanceY", 1, 2, -1, 1, Q("4.5 in")))
pocket7 = doc.addObject("PartDesign::Pocket", "Pocket006")
body.addObject(pocket7)
pocket7.Profile = sketch10
pocket7.Type = "ThroughAll"
pocket7.Reversed = True

sketch11 = doc.addObject("Sketcher::SketchObject", "Sketch010")
body.addObject(sketch11)
sketch11.AttachmentSupport = (doc.XZ_Plane, [""])
sketch11.MapMode = "FlatFace"
sketch11.AttachmentOffset = App.Placement(Vector(0, 0, -0.125 * 25.4), App.Rotation())
sketch11.addGeometry(Part.LineSegment(Vector(-38.3, 63.8, 0), Vector(-38.3, 36.9, 0)), False)
sketch11.addGeometry(Part.ArcOfCircle(Part.Circle(Vector(-41.4, 36.9, 0), Vector(0, 0, 1), 3.2), math.radians(-90), math.radians(0)), False)
sketch11.addGeometry(Part.LineSegment(Vector(-41.4, 33.7, 0), Vector(-44.5, 33.7, 0)), False)
sketch11.addGeometry(Part.LineSegment(Vector(-44.5, 33.7, 0), Vector(-44.5, 76.2, 0)), False)
sketch11.addGeometry(Part.ArcOfCircle(Part.Circle(Vector(-32.1, 76.2, 0), Vector(0, 0, 1), 12.4), math.radians(-180), math.radians(-127)), False)
sketch11.addGeometry(Part.ArcOfCircle(Part.Circle(Vector(-41.4, 63.8, 0), Vector(0, 0, 1), 3.2), math.radians(0), math.radians(53)), False)
sketch11.addGeometry(Part.LineSegment(Vector(44.5, 33.7, 0), Vector(41.4, 33.7, 0)), False)
sketch11.addGeometry(Part.ArcOfCircle(Part.Circle(Vector(41.4, 36.9, 0), Vector(0, 0, 1), 3.2), math.radians(180), math.radians(270)), False)
sketch11.addGeometry(Part.LineSegment(Vector(38.3, 36.9, 0), Vector(38.3, 63.8, 0)), False)
sketch11.addGeometry(Part.ArcOfCircle(Part.Circle(Vector(41.4, 63.8, 0), Vector(0, 0, 1), 3.2), math.radians(127), math.radians(180)), False)
sketch11.addGeometry(Part.ArcOfCircle(Part.Circle(Vector(32.1, 76.2, 0), Vector(0, 0, 1), 12.4), math.radians(-53), math.radians(0)), False)
sketch11.addGeometry(Part.LineSegment(Vector(44.5, 76.2, 0), Vector(44.5, 33.7, 0)), False)
sketch11.addConstraint(Sketcher.Constraint("Tangent", 0, 2, 1, 2))
sketch11.addConstraint(Sketcher.Constraint("Tangent", 1, 1, 2, 1))
sketch11.addConstraint(Sketcher.Constraint("Coincident", 2, 2, 3, 1))
sketch11.addConstraint(Sketcher.Constraint("Tangent", 3, 2, 4, 1))
sketch11.addConstraint(Sketcher.Constraint("Tangent", 4, 2, 5, 2))
sketch11.addConstraint(Sketcher.Constraint("Tangent", 5, 1, 0, 1))
sketch11.addConstraint(Sketcher.Constraint("Tangent", 6, 2, 7, 2))
sketch11.addConstraint(Sketcher.Constraint("Tangent", 7, 1, 8, 1))
sketch11.addConstraint(Sketcher.Constraint("Tangent", 8, 2, 9, 2))
sketch11.addConstraint(Sketcher.Constraint("Tangent", 9, 1, 10, 1))
sketch11.addConstraint(Sketcher.Constraint("Tangent", 10, 2, 11, 1))
sketch11.addConstraint(Sketcher.Constraint("Coincident", 11, 2, 6, 1))
sketch11.addConstraint(Sketcher.Constraint("Vertical", 0))
sketch11.addConstraint(Sketcher.Constraint("Horizontal", 2))
sketch11.addConstraint(Sketcher.Constraint("Vertical", 3))
sketch11.addConstraint(Sketcher.Constraint("Horizontal", 6))
sketch11.addConstraint(Sketcher.Constraint("Vertical", 8))
sketch11.addConstraint(Sketcher.Constraint("Vertical", 11))
sketch11.addConstraint(Sketcher.Constraint("Equal", 1, 5))
sketch11.addConstraint(Sketcher.Constraint("Equal", 5, 7))
sketch11.addConstraint(Sketcher.Constraint("Equal", 7, 9))
sketch11.addConstraint(Sketcher.Constraint("Equal", 4, 10))
sketch11.addConstraint(Sketcher.Constraint("Symmetric", 1, 3, 7, 3, -2))
sketch11.addConstraint(Sketcher.Constraint("Symmetric", 4, 3, 10, 3, -2))
sketch11.addConstraint(Sketcher.Constraint("DistanceY", -1, 1, 4, 3, Q("3 in")))
sketch11.addConstraint(Sketcher.Constraint("Radius", 1, Q("0.125 in")))
sketch11.addConstraint(Sketcher.Constraint("Radius", 4, Q("0.4875 in")))
sketch11.addConstraint(Sketcher.Constraint("DistanceX", 2, 2, -1, 1, Q("1.75 in")))
sketch11.addConstraint(Sketcher.Constraint("DistanceX", 1, 3, 7, 3, Q("3.2625 in")))
sketch11.addConstraint(Sketcher.Constraint("DistanceY", 3, 1, 3, 2, Q("42.47356 mm")))
pocket8 = doc.addObject("PartDesign::Pocket", "Pocket007")
body.addObject(pocket8)
pocket8.Profile = sketch11
pocket8.Type = "ThroughAll"
pocket8.Reversed = True

doc.recompute()
